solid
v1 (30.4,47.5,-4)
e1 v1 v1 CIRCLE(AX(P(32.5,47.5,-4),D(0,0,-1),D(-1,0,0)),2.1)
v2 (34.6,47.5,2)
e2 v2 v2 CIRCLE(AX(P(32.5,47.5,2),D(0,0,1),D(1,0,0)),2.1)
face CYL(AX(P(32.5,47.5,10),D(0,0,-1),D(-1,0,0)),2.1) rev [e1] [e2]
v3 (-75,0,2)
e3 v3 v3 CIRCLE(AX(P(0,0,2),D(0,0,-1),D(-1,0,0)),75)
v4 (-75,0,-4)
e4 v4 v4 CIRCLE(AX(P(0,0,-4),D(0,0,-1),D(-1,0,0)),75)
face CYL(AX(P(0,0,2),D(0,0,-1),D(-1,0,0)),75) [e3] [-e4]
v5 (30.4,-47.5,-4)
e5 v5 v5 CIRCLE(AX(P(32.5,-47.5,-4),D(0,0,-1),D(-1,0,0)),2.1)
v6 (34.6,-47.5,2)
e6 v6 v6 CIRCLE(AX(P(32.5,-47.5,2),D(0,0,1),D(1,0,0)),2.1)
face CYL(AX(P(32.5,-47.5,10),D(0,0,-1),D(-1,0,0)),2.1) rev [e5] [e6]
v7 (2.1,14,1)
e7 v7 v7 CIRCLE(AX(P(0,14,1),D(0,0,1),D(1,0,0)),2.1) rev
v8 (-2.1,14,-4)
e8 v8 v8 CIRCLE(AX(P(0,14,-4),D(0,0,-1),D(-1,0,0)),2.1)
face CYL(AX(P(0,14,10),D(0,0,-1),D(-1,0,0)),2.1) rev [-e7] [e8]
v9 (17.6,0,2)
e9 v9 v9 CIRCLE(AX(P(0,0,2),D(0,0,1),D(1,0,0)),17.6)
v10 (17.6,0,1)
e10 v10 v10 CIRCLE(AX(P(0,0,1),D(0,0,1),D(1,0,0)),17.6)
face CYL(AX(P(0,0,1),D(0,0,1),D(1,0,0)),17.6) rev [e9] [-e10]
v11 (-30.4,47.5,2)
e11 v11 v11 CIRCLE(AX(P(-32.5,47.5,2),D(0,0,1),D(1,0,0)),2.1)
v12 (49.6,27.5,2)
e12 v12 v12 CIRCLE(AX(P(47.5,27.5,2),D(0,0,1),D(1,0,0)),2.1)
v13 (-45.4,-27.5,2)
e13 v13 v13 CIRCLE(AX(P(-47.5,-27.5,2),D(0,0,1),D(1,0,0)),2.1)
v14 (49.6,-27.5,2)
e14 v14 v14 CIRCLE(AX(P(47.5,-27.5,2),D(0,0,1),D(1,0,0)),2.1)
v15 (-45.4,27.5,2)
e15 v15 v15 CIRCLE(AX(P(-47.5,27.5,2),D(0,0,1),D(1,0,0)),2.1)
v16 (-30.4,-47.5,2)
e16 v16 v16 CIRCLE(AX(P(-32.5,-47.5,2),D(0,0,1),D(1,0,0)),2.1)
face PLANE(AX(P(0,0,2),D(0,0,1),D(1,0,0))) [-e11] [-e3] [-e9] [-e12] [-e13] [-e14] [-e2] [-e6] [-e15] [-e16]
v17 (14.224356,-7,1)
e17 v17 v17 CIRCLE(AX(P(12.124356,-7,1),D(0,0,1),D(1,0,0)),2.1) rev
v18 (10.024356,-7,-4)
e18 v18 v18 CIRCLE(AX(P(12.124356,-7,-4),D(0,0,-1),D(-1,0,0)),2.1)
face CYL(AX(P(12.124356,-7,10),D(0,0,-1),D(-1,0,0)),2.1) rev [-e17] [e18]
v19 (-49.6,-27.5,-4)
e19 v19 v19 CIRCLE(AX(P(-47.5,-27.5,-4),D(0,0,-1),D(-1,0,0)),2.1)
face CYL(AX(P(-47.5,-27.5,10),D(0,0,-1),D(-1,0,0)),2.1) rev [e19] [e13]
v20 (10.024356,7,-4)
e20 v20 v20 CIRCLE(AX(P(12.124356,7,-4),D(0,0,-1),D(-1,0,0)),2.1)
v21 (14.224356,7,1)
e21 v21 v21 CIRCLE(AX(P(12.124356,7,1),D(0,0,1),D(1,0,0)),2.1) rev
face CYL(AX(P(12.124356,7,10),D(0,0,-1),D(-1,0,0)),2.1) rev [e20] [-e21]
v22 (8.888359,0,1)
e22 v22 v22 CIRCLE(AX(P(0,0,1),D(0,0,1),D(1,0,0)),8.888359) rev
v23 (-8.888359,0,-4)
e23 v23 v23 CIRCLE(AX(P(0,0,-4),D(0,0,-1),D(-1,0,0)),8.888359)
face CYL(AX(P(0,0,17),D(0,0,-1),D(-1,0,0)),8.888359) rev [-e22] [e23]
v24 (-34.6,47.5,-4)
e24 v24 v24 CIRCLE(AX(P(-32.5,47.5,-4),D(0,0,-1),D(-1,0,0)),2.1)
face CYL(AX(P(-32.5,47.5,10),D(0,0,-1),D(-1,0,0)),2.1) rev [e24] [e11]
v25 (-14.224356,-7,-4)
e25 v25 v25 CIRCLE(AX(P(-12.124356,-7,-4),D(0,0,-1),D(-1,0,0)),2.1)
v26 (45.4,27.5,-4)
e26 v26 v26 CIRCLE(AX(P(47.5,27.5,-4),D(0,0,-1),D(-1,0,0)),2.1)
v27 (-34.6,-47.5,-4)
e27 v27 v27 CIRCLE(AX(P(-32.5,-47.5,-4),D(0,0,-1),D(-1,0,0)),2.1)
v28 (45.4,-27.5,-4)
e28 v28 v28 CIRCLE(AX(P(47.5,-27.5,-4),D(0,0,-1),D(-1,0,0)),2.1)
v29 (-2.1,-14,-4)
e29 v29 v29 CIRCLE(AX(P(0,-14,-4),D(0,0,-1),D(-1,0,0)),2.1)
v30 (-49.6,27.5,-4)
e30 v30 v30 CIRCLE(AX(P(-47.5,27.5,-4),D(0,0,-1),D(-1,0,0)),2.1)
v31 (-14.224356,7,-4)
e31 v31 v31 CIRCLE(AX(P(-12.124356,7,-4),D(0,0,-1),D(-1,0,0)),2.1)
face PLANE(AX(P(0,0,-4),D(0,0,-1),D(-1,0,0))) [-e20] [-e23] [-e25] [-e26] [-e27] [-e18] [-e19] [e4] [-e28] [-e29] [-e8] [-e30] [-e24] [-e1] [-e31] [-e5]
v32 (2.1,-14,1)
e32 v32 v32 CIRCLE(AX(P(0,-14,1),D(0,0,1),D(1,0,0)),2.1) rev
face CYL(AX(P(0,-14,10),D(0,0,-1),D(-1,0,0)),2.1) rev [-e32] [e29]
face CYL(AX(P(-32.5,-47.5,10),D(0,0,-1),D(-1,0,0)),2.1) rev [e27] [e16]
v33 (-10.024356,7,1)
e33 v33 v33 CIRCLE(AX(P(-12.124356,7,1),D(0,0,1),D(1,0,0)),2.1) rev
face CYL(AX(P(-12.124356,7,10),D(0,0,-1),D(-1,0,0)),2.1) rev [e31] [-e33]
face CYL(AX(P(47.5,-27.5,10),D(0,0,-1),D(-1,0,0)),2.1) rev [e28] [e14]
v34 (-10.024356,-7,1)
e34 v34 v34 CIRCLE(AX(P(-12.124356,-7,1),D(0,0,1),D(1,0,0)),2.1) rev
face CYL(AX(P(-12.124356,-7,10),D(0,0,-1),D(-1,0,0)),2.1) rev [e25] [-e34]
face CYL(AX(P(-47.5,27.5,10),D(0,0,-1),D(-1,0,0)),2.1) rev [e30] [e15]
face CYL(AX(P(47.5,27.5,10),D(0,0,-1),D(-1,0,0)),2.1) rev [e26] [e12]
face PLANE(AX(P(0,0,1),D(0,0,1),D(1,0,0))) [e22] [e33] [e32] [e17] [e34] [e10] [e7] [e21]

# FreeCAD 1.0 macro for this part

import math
import FreeCAD as App
import Part
import Sketcher


def add_polygon(sketch, points):
    """Adds a closed chain of lines whose ends are joined by coincident constraints."""
    first, n = sketch.GeometryCount, len(points)
    for a, b in zip(points, points[1:] + points[:1]):
        sketch.addGeometry(Part.LineSegment(App.Vector(*a, 0), App.Vector(*b, 0)), False)
    for i in range(n):
        sketch.addConstraint(Sketcher.Constraint("Coincident", first + i, 2, first + (i + 1) % n, 1))

doc = App.newDocument("Part")
body = doc.addObject("PartDesign::Body", "Body")

sketch1 = body.newObject("Sketcher::SketchObject", "Sketch")
sketch1.AttachmentSupport = (doc.getObject("XY_Plane"), [""])
sketch1.MapMode = "FlatFace"
sketch1.addGeometry(Part.Circle(App.Vector(0, 0, 0), App.Vector(0, 0, 1), 40), False)
sketch1.addConstraint([
    Sketcher.Constraint("Coincident", 0, 3, -1, 1),
    Sketcher.Constraint("Diameter", 0, 80.0),
])
pad1 = body.newObject("PartDesign::Pad", "Pad")
pad1.Profile = sketch1
pad1.Length = 2

sketch2 = body.newObject("Sketcher::SketchObject", "Sketch001")
sketch2.AttachmentSupport = (doc.getObject("XY_Plane"), [""])
sketch2.MapMode = "FlatFace"
sketch2.AttachmentOffset = App.Placement(App.Vector(0, 0, 2), App.Rotation())
sketch2.addGeometry(Part.Circle(App.Vector(0, 0, 0), App.Vector(0, 0, 1), 34), False)
sketch2.addConstraint([
    Sketcher.Constraint("Coincident", 0, 3, -1, 1),
    Sketcher.Constraint("Diameter", 0, 68.0),
])
pocket1 = body.newObject("PartDesign::Pocket", "Pocket")
pocket1.Profile = sketch2
pocket1.Length = 0.5

sketch3 = body.newObject("Sketcher::SketchObject", "Sketch002")
sketch3.AttachmentSupport = (doc.getObject("XY_Plane"), [""])
sketch3.MapMode = "FlatFace"
sketch3.AttachmentOffset = App.Placement(App.Vector(0, 0, 1.5), App.Rotation())
sketch3.addGeometry(Part.Circle(App.Vector(0, 0, 0), App.Vector(0, 0, 1), 18), False)
sketch3.addConstraint([
    Sketcher.Constraint("Coincident", 0, 3, -1, 1),
    Sketcher.Constraint("Diameter", 0, 35.0),
])
pocket2 = body.newObject("PartDesign::Pocket", "Pocket001")
pocket2.Profile = sketch3
pocket2.Length = 1

sketch4 = body.newObject("Sketcher::SketchObject", "Sketch003")
sketch4.AttachmentSupport = (doc.getObject("XY_Plane"), [""])
sketch4.MapMode = "FlatFace"
sketch4.AttachmentOffset = App.Placement(App.Vector(0, 0, 0.5), App.Rotation())
sketch4.addGeometry([
    Part.Circle(App.Vector(0, 14, 0), App.Vector(0, 0, 1), 2),
    Part.Circle(App.Vector(12.1, 7, 0), App.Vector(0, 0, 1), 2),
    Part.Circle(App.Vector(12.1, -7, 0), App.Vector(0, 0, 1), 2),
    Part.Circle(App.Vector(0, -14, 0), App.Vector(0, 0, 1), 2),
    Part.Circle(App.Vector(-12.1, -7, 0), App.Vector(0, 0, 1), 2),
    Part.Circle(App.Vector(-12.1, 7, 0), App.Vector(0, 0, 1), 2),
], False)
sketch4.addConstraint([
    Sketcher.Constraint("Equal", 0, 1),
    Sketcher.Constraint("Equal", 1, 2),
    Sketcher.Constraint("Equal", 2, 3),
    Sketcher.Constraint("Equal", 3, 4),
    Sketcher.Constraint("Equal", 4, 5),
    Sketcher.Constraint("Symmetric", 0, 3, 3, 3, -1, 1),
    Sketcher.Constraint("Symmetric", 1, 3, 4, 3, -1, 1),
    Sketcher.Constraint("Symmetric", 2, 3, 5, 3, -1, 1),
    Sketcher.Constraint("Symmetric", 2, 3, 4, 3, -2),
    Sketcher.Constraint("PointOnObject", 0, 3, -2),
    Sketcher.Constraint("Diameter", 0, 4.0),
    Sketcher.Constraint("DistanceY", -1, 1, 0, 3, 14.0),
    Sketcher.Constraint("DistanceY", -1, 1, 1, 3, 7.0),
    Sketcher.Constraint("DistanceX", 4, 3, 2, 3, 24.248711),
])
pocket3 = body.newObject("PartDesign::Pocket", "Pocket002")
pocket3.Profile = sketch4
pocket3.Length = 1

sketch5 = body.newObject("Sketcher::SketchObject", "Sketch004")
sketch5.AttachmentSupport = (doc.getObject("XY_Plane"), [""])
sketch5.MapMode = "FlatFace"
sketch5.addGeometry(Part.Circle(App.Vector(0, 0, 0), App.Vector(0, 0, 1), 8), False)
sketch5.addConstraint([
    Sketcher.Constraint("Coincident", 0, 3, -1, 1),
    Sketcher.Constraint("Diameter", 0, 16.0),
])
pocket4 = body.newObject("PartDesign::Pocket", "Pocket003")
pocket4.Profile = sketch5
pocket4.Length = 10
pocket4.Reversed = True

sketch6 = body.newObject("Sketcher::SketchObject", "Sketch005")
sketch6.AttachmentSupport = (doc.getObject("XY_Plane"), [""])
sketch6.MapMode = "FlatFace"
sketch6.addGeometry([
    Part.Circle(App.Vector(0, 14, 0), App.Vector(0, 0, 1), 2.1),
    Part.Circle(App.Vector(-12.1, 7, 0), App.Vector(0, 0, 1), 2.1),
    Part.Circle(App.Vector(-12.1, -7, 0), App.Vector(0, 0, 1), 2.1),
    Part.Circle(App.Vector(0, -14, 0), App.Vector(0, 0, 1), 2.1),
    Part.Circle(App.Vector(12.1, -7, 0), App.Vector(0, 0, 1), 2.1),
    Part.Circle(App.Vector(12.1, 7, 0), App.Vector(0, 0, 1), 2.1),
], False)
sketch6.addConstraint([
    Sketcher.Constraint("Equal", 0, 1),
    Sketcher.Constraint("Equal", 1, 2),
    Sketcher.Constraint("Equal", 2, 3),
    Sketcher.Constraint("Equal", 3, 4),
    Sketcher.Constraint("Equal", 4, 5),
    Sketcher.Constraint("Symmetric", 0, 3, 3, 3, -1, 1),
    Sketcher.Constraint("Symmetric", 1, 3, 4, 3, -1, 1),
    Sketcher.Constraint("Symmetric", 2, 3, 5, 3, -1, 1),
    Sketcher.Constraint("Symmetric", 2, 3, 4, 3, -2),
    Sketcher.Constraint("PointOnObject", 0, 3, -2),
    Sketcher.Constraint("Diameter", 0, 4.2),
    Sketcher.Constraint("DistanceY", -1, 1, 0, 3, 14.0),
    Sketcher.Constraint("DistanceY", -1, 1, 1, 3, 7.0),
    Sketcher.Constraint("DistanceX", 2, 3, 4, 3, 24.248711),
])
pocket5 = body.newObject("PartDesign::Pocket", "Pocket004")
pocket5.Profile = sketch6
pocket5.Length = 10
pocket5.Reversed = True

sketch7 = body.newObject("Sketcher::SketchObject", "Sketch006")
sketch7.AttachmentSupport = (doc.getObject("XY_Plane"), [""])
sketch7.MapMode = "FlatFace"
sketch7.addGeometry([
    Part.Circle(App.Vector(0, 0, 0), App.Vector(0, 0, 1), 70),
    Part.Circle(App.Vector(0, 0, 0), App.Vector(0, 0, 1), 40),
], False)
sketch7.addConstraint([
    Sketcher.Constraint("Coincident", 0, 3, -1, 1),
    Sketcher.Constraint("Coincident", 1, 3, -1, 1),
    Sketcher.Constraint("Diameter", 0, 140.0),
    Sketcher.Constraint("Diameter", 1, 80.0),
])
pad2 = body.newObject("PartDesign::Pad", "Pad001")
pad2.Profile = sketch7
pad2.Length = 2

sketch8 = body.newObject("Sketcher::SketchObject", "Sketch007")
sketch8.AttachmentSupport = (doc.getObject("XY_Plane"), [""])
sketch8.MapMode = "FlatFace"
sketch8.addGeometry([
    Part.ArcOfCircle(Part.Circle(App.Vector(0, 0, 0), App.Vector(0, 0, 1), 70), math.radians(58), math.radians(120)),
    Part.LineSegment(App.Vector(-35, 60, 0), App.Vector(-35, 160, 0)),
    Part.LineSegment(App.Vector(-35, 160, 0), App.Vector(37, 160, 0)),
    Part.LineSegment(App.Vector(37, 160, 0), App.Vector(37, 60, 0)),
    Part.LineSegment(App.Vector(-160, 36, 0), App.Vector(-60, 36, 0)),
    Part.ArcOfCircle(Part.Circle(App.Vector(0, 0, 0), App.Vector(0, 0, 1), 70), math.radians(149), math.radians(180)),
    Part.ArcOfCircle(Part.Circle(App.Vector(0, 0, 0), App.Vector(0, 0, 1), 70), math.radians(-180), math.radians(-149)),
    Part.LineSegment(App.Vector(-60, -36, 0), App.Vector(-160, -36, 0)),
    Part.LineSegment(App.Vector(-160, -36, 0), App.Vector(-160, 36, 0)),
    Part.ArcOfCircle(Part.Circle(App.Vector(0, 0, 0), App.Vector(0, 0, 1), 70), math.radians(-120), math.radians(-58)),
    Part.LineSegment(App.Vector(37, -60, 0), App.Vector(37, -160, 0)),
    Part.LineSegment(App.Vector(37, -160, 0), App.Vector(-35, -160, 0)),
    Part.LineSegment(App.Vector(-35, -160, 0), App.Vector(-35, -60, 0)),
    Part.ArcOfCircle(Part.Circle(App.Vector(0, 0, 0), App.Vector(0, 0, 1), 70), math.radians(-31), math.radians(31)),
    Part.LineSegment(App.Vector(60, 36, 0), App.Vector(160, 36, 0)),
    Part.LineSegment(App.Vector(160, 36, 0), App.Vector(160, -36, 0)),
    Part.LineSegment(App.Vector(160, -36, 0), App.Vector(60, -36, 0)),
], False)
sketch8.addConstraint([
    Sketcher.Constraint("Coincident", 0, 2, 1, 1),
    Sketcher.Constraint("Coincident", 1, 2, 2, 1),
    Sketcher.Constraint("Coincident", 2, 2, 3, 1),
    Sketcher.Constraint("Coincident", 3, 2, 0, 1),
    Sketcher.Constraint("Coincident", 4, 2, 5, 1),
    Sketcher.Constraint("Tangent", 5, 2, 6, 1),
    Sketcher.Constraint("Coincident", 6, 2, 7, 1),
    Sketcher.Constraint("Coincident", 7, 2, 8, 1),
    Sketcher.Constraint("Coincident", 8, 2, 4, 1),
    Sketcher.Constraint("Coincident", 9, 2, 10, 1),
    Sketcher.Constraint("Coincident", 10, 2, 11, 1),
    Sketcher.Constraint("Coincident", 11, 2, 12, 1),
    Sketcher.Constraint("Coincident", 12, 2, 9, 1),
    Sketcher.Constraint("Coincident", 13, 2, 14, 1),
    Sketcher.Constraint("Coincident", 14, 2, 15, 1),
    Sketcher.Constraint("Coincident", 15, 2, 16, 1),
    Sketcher.Constraint("Coincident", 16, 2, 13, 1),
    Sketcher.Constraint("Vertical", 1),
    Sketcher.Constraint("Horizontal", 2),
    Sketcher.Constraint("Vertical", 3),
    Sketcher.Constraint("Horizontal", 4),
    Sketcher.Constraint("Horizontal", 7),
    Sketcher.Constraint("Vertical", 8),
    Sketcher.Constraint("Vertical", 10),
    Sketcher.Constraint("Horizontal", 11),
    Sketcher.Constraint("Vertical", 12),
    Sketcher.Constraint("Horizontal", 14),
    Sketcher.Constraint("Vertical", 15),
    Sketcher.Constraint("Horizontal", 16),
    Sketcher.Constraint("Coincident", 0, 3, -1, 1),
    Sketcher.Constraint("Coincident", 5, 3, -1, 1),
    Sketcher.Constraint("Coincident", 9, 3, -1, 1),
    Sketcher.Constraint("Coincident", 13, 3, -1, 1),
    Sketcher.Constraint("Equal", 0, 5),
    Sketcher.Constraint("Equal", 5, 6),
    Sketcher.Constraint("Equal", 6, 9),
    Sketcher.Constraint("Equal", 9, 13),
    Sketcher.Constraint("Symmetric", 7, 2, 14, 2, -1, 1),
    Sketcher.Constraint("PointOnObject", 5, 2, -1),
    Sketcher.Constraint("Horizontal", 8, 2, 13, 2),
    Sketcher.Constraint("Horizontal", 7, 2, 15, 2),
    Sketcher.Constraint("Vertical", 3, 2, 9, 2),
    Sketcher.Constraint("Vertical", 1, 2, 11, 2),
    Sketcher.Constraint("Equal", 16, 3),
    Sketcher.Constraint("Equal", 3, 12),
    Sketcher.Constraint("Radius", 0, 70.0),
    Sketcher.Constraint("DistanceX", 4, 1, 4, 2, 100.0),
    Sketcher.Constraint("DistanceX", 4, 2, -1, 1, 60.0),
    Sketcher.Constraint("DistanceX", 2, 1, 2, 2, 72.104518),
    Sketcher.Constraint("DistanceY", 1, 1, 1, 2, 99.031225),
])
pad3 = body.newObject("PartDesign::Pad", "Pad002")
pad3.Profile = sketch8
pad3.Length = 2

sketch9 = body.newObject("Sketcher::SketchObject", "Sketch008")
sketch9.AttachmentSupport = (doc.getObject("XY_Plane"), [""])
sketch9.MapMode = "FlatFace"
sketch9.addGeometry([
    Part.Circle(App.Vector(0, 0, 0), App.Vector(0, 0, 1), 75),
    Part.Circle(App.Vector(12.1, -7, 0), App.Vector(0, 0, 1), 2.1),
    Part.Circle(App.Vector(0, -14, 0), App.Vector(0, 0, 1), 2.1),
    Part.Circle(App.Vector(-12.1, -7, 0), App.Vector(0, 0, 1), 2.1),
    Part.Circle(App.Vector(12.1, 7, 0), App.Vector(0, 0, 1), 2.1),
    Part.Circle(App.Vector(0, 0, 0), App.Vector(0, 0, 1), 8),
    Part.Circle(App.Vector(-12.1, 7, 0), App.Vector(0, 0, 1), 2.1),
    Part.Circle(App.Vector(0, 14, 0), App.Vector(0, 0, 1), 2.1),
], False)
sketch9.addConstraint([
    Sketcher.Constraint("Coincident", 0, 3, -1, 1),
    Sketcher.Constraint("Coincident", 5, 3, -1, 1),
    Sketcher.Constraint("Equal", 1, 2),
    Sketcher.Constraint("Equal", 2, 3),
    Sketcher.Constraint("Equal", 3, 4),
    Sketcher.Constraint("Equal", 4, 6),
    Sketcher.Constraint("Equal", 6, 7),
    Sketcher.Constraint("Symmetric", 3, 3, 4, 3, -1, 1),
    Sketcher.Constraint("Symmetric", 1, 3, 6, 3, -1, 1),
    Sketcher.Constraint("Symmetric", 2, 3, 7, 3, -1, 1),
    Sketcher.Constraint("Symmetric", 1, 3, 3, 3, -2),
    Sketcher.Constraint("PointOnObject", 2, 3, -2),
    Sketcher.Constraint("Diameter", 0, 150.0),
    Sketcher.Constraint("Diameter", 5, 16.0),
    Sketcher.Constraint("Diameter", 1, 4.2),
    Sketcher.Constraint("DistanceY", 1, 3, -1, 1, 7.0),
    Sketcher.Constraint("DistanceY", 2, 3, -1, 1, 14.0),
    Sketcher.Constraint("DistanceX", 3, 3, 1, 3, 24.248711),
])
pad4 = body.newObject("PartDesign::Pad", "Pad003")
pad4.Profile = sketch9
pad4.Length = 2

sketch10 = body.newObject("Sketcher::SketchObject", "Sketch009")
sketch10.AttachmentSupport = (doc.getObject("XY_Plane"), [""])
sketch10.MapMode = "FlatFace"
add_polygon(sketch10, [(160, 18), (160, -18), (64, -18), (64, 18)])
add_polygon(sketch10, [(18, 160), (18, 59), (-18, 59), (-18, 160)])
add_polygon(sketch10, [(-160, -18), (-160, 18), (-52, 18), (-52, -18)])
add_polygon(sketch10, [(18, -64), (18, -160), (-18, -160), (-18, -64)])
sketch10.addConstraint([
    Sketcher.Constraint("Vertical", 0),
    Sketcher.Constraint("Horizontal", 1),
    Sketcher.Constraint("Vertical", 2),
    Sketcher.Constraint("Horizontal", 3),
    Sketcher.Constraint("Vertical", 4),
    Sketcher.Constraint("Horizontal", 5),
    Sketcher.Constraint("Vertical", 6),
    Sketcher.Constraint("Horizontal", 7),
    Sketcher.Constraint("Vertical", 8),
    Sketcher.Constraint("Horizontal", 9),
    Sketcher.Constraint("Vertical", 10),
    Sketcher.Constraint("Horizontal", 11),
    Sketcher.Constraint("Vertical", 12),
    Sketcher.Constraint("Horizontal", 13),
    Sketcher.Constraint("Vertical", 14),
    Sketcher.Constraint("Horizontal", 15),
    Sketcher.Constraint("Symmetric", 0, 2, 8, 2, -1, 1),
    Sketcher.Constraint("Horizontal", 3, 2, 8, 2),
    Sketcher.Constraint("Horizontal", 1, 2, 10, 2),
    Sketcher.Constraint("Vertical", 7, 2, 12, 2),
    Sketcher.Constraint("Vertical", 6, 2, 13, 2),
    Sketcher.Constraint("Equal", 15, 0),
    Sketcher.Constraint("DistanceX", 5, 2, 5, 1, 36.0),
    Sketcher.Constraint("DistanceX", -1, 1, 0, 2, 160.0),
    Sketcher.Constraint("DistanceX", -1, 1, 4, 2, 18.0),
    Sketcher.Constraint("DistanceX", 1, 2, 1, 1, 95.69633),
    Sketcher.Constraint("DistanceY", 4, 2, 4, 1, 100.137159),
    Sketcher.Constraint("DistanceY", 12, 2, 12, 1, 96.24175),
    Sketcher.Constraint("DistanceX", 9, 1, 9, 2, 107.536013),
    Sketcher.Constraint("DistanceY", -1, 1, 4, 2, 59.373039),
    Sketcher.Constraint("DistanceY", 12, 2, -1, 1, 160.478973),
])
pocket6 = body.newObject("PartDesign::Pocket", "Pocket005")
pocket6.Profile = sketch10
pocket6.Length = 198
pocket6.Reversed = True

sketch11 = body.newObject("Sketcher::SketchObject", "Sketch010")
sketch11.AttachmentSupport = (doc.getObject("XY_Plane"), [""])
sketch11.MapMode = "FlatFace"
sketch11.addGeometry([
    Part.Circle(App.Vector(0, 0, 0), App.Vector(0, 0, 1), 75),
    Part.Circle(App.Vector(12.1, -7, 0), App.Vector(0, 0, 1), 2.1),
    Part.Circle(App.Vector(0, -14, 0), App.Vector(0, 0, 1), 2.1),
    Part.Circle(App.Vector(-12.1, -7, 0), App.Vector(0, 0, 1), 2.1),
    Part.Circle(App.Vector(12.1, 7, 0), App.Vector(0, 0, 1), 2.1),
    Part.Circle(App.Vector(0, 0, 0), App.Vector(0, 0, 1), 8),
    Part.Circle(App.Vector(-12.1, 7, 0), App.Vector(0, 0, 1), 2.1),
    Part.Circle(App.Vector(0, 14, 0), App.Vector(0, 0, 1), 2.1),
], False)
sketch11.addConstraint([
    Sketcher.Constraint("Coincident", 0, 3, -1, 1),
    Sketcher.Constraint("Coincident", 5, 3, -1, 1),
    Sketcher.Constraint("Equal", 1, 2),
    Sketcher.Constraint("Equal", 2, 3),
    Sketcher.Constraint("Equal", 3, 4),
    Sketcher.Constraint("Equal", 4, 6),
    Sketcher.Constraint("Equal", 6, 7),
    Sketcher.Constraint("Symmetric", 3, 3, 4, 3, -1, 1),
    Sketcher.Constraint("Symmetric", 1, 3, 6, 3, -1, 1),
    Sketcher.Constraint("Symmetric", 2, 3, 7, 3, -1, 1),
    Sketcher.Constraint("Symmetric", 1, 3, 3, 3, -2),
    Sketcher.Constraint("PointOnObject", 2, 3, -2),
    Sketcher.Constraint("Diameter", 0, 150.0),
    Sketcher.Constraint("Diameter", 5, 16.0),
    Sketcher.Constraint("Diameter", 1, 4.2),
    Sketcher.Constraint("DistanceY", 1, 3, -1, 1, 7.0),
    Sketcher.Constraint("DistanceY", 2, 3, -1, 1, 14.0),
    Sketcher.Constraint("DistanceX", 3, 3, 1, 3, 24.248711),
])
pad5 = body.newObject("PartDesign::Pad", "Pad004")
pad5.Profile = sketch11
pad5.Length = 2

sketch12 = body.newObject("Sketcher::SketchObject", "Sketch011")
sketch12.AttachmentSupport = (doc.getObject("XY_Plane"), [""])
sketch12.MapMode = "FlatFace"
sketch12.addGeometry([
    Part.Circle(App.Vector(27, 157.6, 0), App.Vector(0, 0, 1), 1.6),
    Part.Circle(App.Vector(27, 132.6, 0), App.Vector(0, 0, 1), 1.6),
    Part.Circle(App.Vector(-27, 132.6, 0), App.Vector(0, 0, 1), 1.6),
    Part.Circle(App.Vector(-132.6, 27, 0), App.Vector(0, 0, 1), 1.6),
    Part.Circle(App.Vector(27, -157.6, 0), App.Vector(0, 0, 1), 1.6),
    Part.Circle(App.Vector(157.6, 27, 0), App.Vector(0, 0, 1), 1.6),
    Part.Circle(App.Vector(132.6, 27, 0), App.Vector(0, 0, 1), 1.6),
    Part.Circle(App.Vector(157.6, -27, 0), App.Vector(0, 0, 1), 1.6),
    Part.Circle(App.Vector(132.6, -27, 0), App.Vector(0, 0, 1), 1.6),
    Part.Circle(App.Vector(-27, 157.6, 0), App.Vector(0, 0, 1), 1.6),
    Part.Circle(App.Vector(-157.6, 27, 0), App.Vector(0, 0, 1), 1.6),
    Part.Circle(App.Vector(27, -132.6, 0), App.Vector(0, 0, 1), 1.6),
    Part.Circle(App.Vector(-27, -132.6, 0), App.Vector(0, 0, 1), 1.6),
    Part.Circle(App.Vector(-27, -157.6, 0), App.Vector(0, 0, 1), 1.6),
], False)
sketch12.addConstraint([
    Sketcher.Constraint("Equal", 0, 1),
    Sketcher.Constraint("Equal", 1, 2),
    Sketcher.Constraint("Equal", 2, 3),
    Sketcher.Constraint("Equal", 3, 4),
    Sketcher.Constraint("Equal", 4, 5),
    Sketcher.Constraint("Equal", 5, 6),
    Sketcher.Constraint("Equal", 6, 7),
    Sketcher.Constraint("Equal", 7, 8),
    Sketcher.Constraint("Equal", 8, 9),
    Sketcher.Constraint("Equal", 9, 10),
    Sketcher.Constraint("Equal", 10, 11),
    Sketcher.Constraint("Equal", 11, 12),
    Sketcher.Constraint("Equal", 12, 13),
    Sketcher.Constraint("Symmetric", 3, 3, 8, 3, -1, 1),
    Sketcher.Constraint("Symmetric", 4, 3, 9, 3, -1, 1),
    Sketcher.Constraint("Symmetric", 7, 3, 10, 3, -1, 1),
    Sketcher.Constraint("Symmetric", 2, 3, 11, 3, -1, 1),
    Sketcher.Constraint("Symmetric", 1, 3, 12, 3, -1, 1),
    Sketcher.Constraint("Symmetric", 0, 3, 13, 3, -1, 1),
    Sketcher.Constraint("Symmetric", 1, 3, 2, 3, -2),
    Sketcher.Constraint("Symmetric", 3, 3, 6, 3, -2),
    Sketcher.Constraint("Symmetric", 0, 3, 9, 3, -2),
    Sketcher.Constraint("Symmetric", 5, 3, 10, 3, -2),
    Sketcher.Constraint("Horizontal", 3, 3, 5, 3),
    Sketcher.Constraint("Vertical", 0, 3, 1, 3),
    Sketcher.Constraint("Diameter", 0, 3.3),
    Sketcher.Constraint("DistanceY", 1, 3, 0, 3, 25.0),
    Sketcher.Constraint("DistanceX", 6, 3, 5, 3, 25.0),
    Sketcher.Constraint("DistanceY", -1, 1, 0, 3, 157.6),
    Sketcher.Constraint("DistanceX", 3, 3, -1, 1, 132.6),
    Sketcher.Constraint("DistanceX", -1, 1, 0, 3, 27.027756),
    Sketcher.Constraint("DistanceY", -1, 1, 3, 3, 27.027756),
])
pocket7 = body.newObject("PartDesign::Pocket", "Pocket006")
pocket7.Profile = sketch12
pocket7.Length = 280
pocket7.Reversed = True

sketch13 = body.newObject("Sketcher::SketchObject", "Sketch012")
sketch13.AttachmentSupport = (doc.getObject("XY_Plane"), [""])
sketch13.MapMode = "FlatFace"
sketch13.addGeometry([
    Part.Circle(App.Vector(0, 0, 0), App.Vector(0, 0, 1), 234.9),
    Part.Circle(App.Vector(0, 0, 0), App.Vector(0, 0, 1), 75),
    Part.Circle(App.Vector(-157.6, 27, 0), App.Vector(0, 0, 1), 1.6),
], False)
sketch13.addConstraint([
    Sketcher.Constraint("Coincident", 0, 3, -1, 1),
    Sketcher.Constraint("Coincident", 1, 3, -1, 1),
    Sketcher.Constraint("Diameter", 1, 150.0),
    Sketcher.Constraint("Diameter", 2, 3.3),
    Sketcher.Constraint("DistanceX", 2, 3, -1, 1, 157.6),
    Sketcher.Constraint("Diameter", 0, 469.729985),
    Sketcher.Constraint("DistanceY", -1, 1, 2, 3, 27.027756),
])
pocket8 = body.newObject("PartDesign::Pocket", "Pocket007")
pocket8.Profile = sketch13
pocket8.Length = 222
pocket8.Reversed = True

sketch14 = body.newObject("Sketcher::SketchObject", "Sketch013")
sketch14.AttachmentSupport = (doc.getObject("XY_Plane"), [""])
sketch14.MapMode = "FlatFace"
sketch14.addGeometry(Part.Circle(App.Vector(0, 0, 0), App.Vector(0, 0, 1), 9), False)
sketch14.addConstraint([
    Sketcher.Constraint("Coincident", 0, 3, -1, 1),
    Sketcher.Constraint("Diameter", 0, 17.776718),
])
pocket9 = body.newObject("PartDesign::Pocket", "Pocket008")
pocket9.Profile = sketch14
pocket9.Length = 17
pocket9.Reversed = True

sketch15 = body.newObject("Sketcher::SketchObject", "Sketch014")
sketch15.AttachmentSupport = (doc.getObject("XY_Plane"), [""])
sketch15.MapMode = "FlatFace"
sketch15.AttachmentOffset = App.Placement(App.Vector(0, 0, 2), App.Rotation())
sketch15.addGeometry(Part.Circle(App.Vector(0, 0, 0), App.Vector(0, 0, 1), 18), False)
sketch15.addConstraint([
    Sketcher.Constraint("Coincident", 0, 3, -1, 1),
    Sketcher.Constraint("Diameter", 0, 35.0),
])
pocket10 = body.newObject("PartDesign::Pocket", "Pocket009")
pocket10.Profile = sketch15
pocket10.Length = 1

sketch16 = body.newObject("Sketcher::SketchObject", "Sketch015")
sketch16.AttachmentSupport = (doc.getObject("XY_Plane"), [""])
sketch16.MapMode = "FlatFace"
sketch16.AttachmentOffset = App.Placement(App.Vector(0, 0, 2), App.Rotation())
sketch16.addGeometry(Part.Circle(App.Vector(0, 0, 0), App.Vector(0, 0, 1), 18), False)
sketch16.addConstraint([
    Sketcher.Constraint("Coincident", 0, 3, -1, 1),
    Sketcher.Constraint("Diameter", 0, 35.2),
])
pocket11 = body.newObject("PartDesign::Pocket", "Pocket010")
pocket11.Profile = sketch16
pocket11.Length = 1

sketch17 = body.newObject("Sketcher::SketchObject", "Sketch016")
sketch17.AttachmentSupport = (doc.getObject("XY_Plane"), [""])
sketch17.MapMode = "FlatFace"
sketch17.addGeometry([
    Part.Circle(App.Vector(32.5, -47.5, 0), App.Vector(0, 0, 1), 2.1),
    Part.Circle(App.Vector(-32.5, -47.5, 0), App.Vector(0, 0, 1), 2.1),
    Part.Circle(App.Vector(32.5, 47.5, 0), App.Vector(0, 0, 1), 2.1),
    Part.Circle(App.Vector(-32.5, 47.5, 0), App.Vector(0, 0, 1), 2.1),
], False)
sketch17.addConstraint([
    Sketcher.Constraint("Equal", 0, 1),
    Sketcher.Constraint("Equal", 1, 2),
    Sketcher.Constraint("Equal", 2, 3),
    Sketcher.Constraint("Symmetric", 1, 3, 2, 3, -1, 1),
    Sketcher.Constraint("Symmetric", 0, 3, 3, 3, -1, 1),
    Sketcher.Constraint("Symmetric", 0, 3, 1, 3, -2),
    Sketcher.Constraint("Diameter", 0, 4.2),
    Sketcher.Constraint("DistanceX", 1, 3, 0, 3, 65.0),
    Sketcher.Constraint("DistanceY", 0, 3, 2, 3, 95.0),
])
pocket12 = body.newObject("PartDesign::Pocket", "Pocket011")
pocket12.Profile = sketch17
pocket12.Length = 10
pocket12.Reversed = True

sketch18 = body.newObject("Sketcher::SketchObject", "Sketch017")
sketch18.AttachmentSupport = (doc.getObject("XY_Plane"), [""])
sketch18.MapMode = "FlatFace"
sketch18.addGeometry([
    Part.Circle(App.Vector(47.5, 27.5, 0), App.Vector(0, 0, 1), 2.1),
    Part.Circle(App.Vector(47.5, -27.5, 0), App.Vector(0, 0, 1), 2.1),
    Part.Circle(App.Vector(-47.5, 27.5, 0), App.Vector(0, 0, 1), 2.1),
    Part.Circle(App.Vector(-47.5, -27.5, 0), App.Vector(0, 0, 1), 2.1),
], False)
sketch18.addConstraint([
    Sketcher.Constraint("Equal", 0, 1),
    Sketcher.Constraint("Equal", 1, 2),
    Sketcher.Constraint("Equal", 2, 3),
    Sketcher.Constraint("Symmetric", 1, 3, 2, 3, -1, 1),
    Sketcher.Constraint("Symmetric", 0, 3, 3, 3, -1, 1),
    Sketcher.Constraint("Symmetric", 0, 3, 2, 3, -2),
    Sketcher.Constraint("Diameter", 0, 4.2),
    Sketcher.Constraint("DistanceY", 1, 3, 0, 3, 55.0),
    Sketcher.Constraint("DistanceX", 2, 3, 0, 3, 95.0),
])
pocket13 = body.newObject("PartDesign::Pocket", "Pocket012")
pocket13.Profile = sketch18
pocket13.Length = 10
pocket13.Reversed = True

sketch19 = body.newObject("Sketcher::SketchObject", "Sketch018")
sketch19.AttachmentSupport = (doc.getObject("XY_Plane"), [""])
sketch19.MapMode = "FlatFace"
sketch19.AttachmentOffset = App.Placement(App.Vector(0, 0, -4), App.Rotation())
sketch19.addGeometry([
    Part.Circle(App.Vector(0, 0, 0), App.Vector(0, 0, 1), 75),
    Part.Circle(App.Vector(32.5, -47.5, 0), App.Vector(0, 0, 1), 2.1),
    Part.Circle(App.Vector(47.5, -27.5, 0), App.Vector(0, 0, 1), 2.1),
    Part.Circle(App.Vector(12.1, -7, 0), App.Vector(0, 0, 1), 2.1),
    Part.Circle(App.Vector(-32.5, -47.5, 0), App.Vector(0, 0, 1), 2.1),
    Part.Circle(App.Vector(-47.5, -27.5, 0), App.Vector(0, 0, 1), 2.1),
    Part.Circle(App.Vector(0, -14, 0), App.Vector(0, 0, 1), 2.1),
    Part.Circle(App.Vector(-12.1, -7, 0), App.Vector(0, 0, 1), 2.1),
    Part.Circle(App.Vector(12.1, 7, 0), App.Vector(0, 0, 1), 2.1),
    Part.Circle(App.Vector(47.5, 27.5, 0), App.Vector(0, 0, 1), 2.1),
    Part.Circle(App.Vector(32.5, 47.5, 0), App.Vector(0, 0, 1), 2.1),
    Part.Circle(App.Vector(0, 0, 0), App.Vector(0, 0, 1), 8.9),
    Part.Circle(App.Vector(-12.1, 7, 0), App.Vector(0, 0, 1), 2.1),
    Part.Circle(App.Vector(0, 14, 0), App.Vector(0, 0, 1), 2.1),
    Part.Circle(App.Vector(-47.5, 27.5, 0), App.Vector(0, 0, 1), 2.1),
    Part.Circle(App.Vector(-32.5, 47.5, 0), App.Vector(0, 0, 1), 2.1),
], False)
sketch19.addConstraint([
    Sketcher.Constraint("Coincident", 0, 3, -1, 1),
    Sketcher.Constraint("Coincident", 11, 3, -1, 1),
    Sketcher.Constraint("Equal", 1, 2),
    Sketcher.Constraint("Equal", 2, 3),
    Sketcher.Constraint("Equal", 3, 4),
    Sketcher.Constraint("Equal", 4, 5),
    Sketcher.Constraint("Equal", 5, 6),
    Sketcher.Constraint("Equal", 6, 7),
    Sketcher.Constraint("Equal", 7, 8),
    Sketcher.Constraint("Equal", 8, 9),
    Sketcher.Constraint("Equal", 9, 10),
    Sketcher.Constraint("Equal", 10, 12),
    Sketcher.Constraint("Equal", 12, 13),
    Sketcher.Constraint("Equal", 13, 14),
    Sketcher.Constraint("Equal", 14, 15),
    Sketcher.Constraint("Symmetric", 7, 3, 8, 3, -1, 1),
    Sketcher.Constraint("Symmetric", 5, 3, 9, 3, -1, 1),
    Sketcher.Constraint("Symmetric", 4, 3, 10, 3, -1, 1),
    Sketcher.Constraint("Symmetric", 3, 3, 12, 3, -1, 1),
    Sketcher.Constraint("Symmetric", 6, 3, 13, 3, -1, 1),
    Sketcher.Constraint("Symmetric", 2, 3, 14, 3, -1, 1),
    Sketcher.Constraint("Symmetric", 1, 3, 15, 3, -1, 1),
    Sketcher.Constraint("Symmetric", 1, 3, 4, 3, -2),
    Sketcher.Constraint("Symmetric", 2, 3, 5, 3, -2),
    Sketcher.Constraint("Symmetric", 3, 3, 7, 3, -2),
    Sketcher.Constraint("PointOnObject", 6, 3, -2),
    Sketcher.Constraint("Diameter", 0, 150.0),
    Sketcher.Constraint("Diameter", 1, 4.2),
    Sketcher.Constraint("DistanceY", 3, 3, -1, 1, 7.0),
    Sketcher.Constraint("DistanceY", 6, 3, -1, 1, 14.0),
    Sketcher.Constraint("DistanceX", 1, 3, 2, 3, 15.0),
    Sketcher.Constraint("DistanceY", 1, 3, 2, 3, 20.0),
    Sketcher.Constraint("DistanceX", 4, 3, 1, 3, 65.0),
    Sketcher.Constraint("DistanceY", 2, 3, 9, 3, 55.0),
    Sketcher.Constraint("Diameter", 11, 17.776718),
    Sketcher.Constraint("DistanceX", 7, 3, 3, 3, 24.248711),
])
pad6 = body.newObject("PartDesign::Pad", "Pad005")
pad6.Profile = sketch19
pad6.Length = 4

doc.recompute()
